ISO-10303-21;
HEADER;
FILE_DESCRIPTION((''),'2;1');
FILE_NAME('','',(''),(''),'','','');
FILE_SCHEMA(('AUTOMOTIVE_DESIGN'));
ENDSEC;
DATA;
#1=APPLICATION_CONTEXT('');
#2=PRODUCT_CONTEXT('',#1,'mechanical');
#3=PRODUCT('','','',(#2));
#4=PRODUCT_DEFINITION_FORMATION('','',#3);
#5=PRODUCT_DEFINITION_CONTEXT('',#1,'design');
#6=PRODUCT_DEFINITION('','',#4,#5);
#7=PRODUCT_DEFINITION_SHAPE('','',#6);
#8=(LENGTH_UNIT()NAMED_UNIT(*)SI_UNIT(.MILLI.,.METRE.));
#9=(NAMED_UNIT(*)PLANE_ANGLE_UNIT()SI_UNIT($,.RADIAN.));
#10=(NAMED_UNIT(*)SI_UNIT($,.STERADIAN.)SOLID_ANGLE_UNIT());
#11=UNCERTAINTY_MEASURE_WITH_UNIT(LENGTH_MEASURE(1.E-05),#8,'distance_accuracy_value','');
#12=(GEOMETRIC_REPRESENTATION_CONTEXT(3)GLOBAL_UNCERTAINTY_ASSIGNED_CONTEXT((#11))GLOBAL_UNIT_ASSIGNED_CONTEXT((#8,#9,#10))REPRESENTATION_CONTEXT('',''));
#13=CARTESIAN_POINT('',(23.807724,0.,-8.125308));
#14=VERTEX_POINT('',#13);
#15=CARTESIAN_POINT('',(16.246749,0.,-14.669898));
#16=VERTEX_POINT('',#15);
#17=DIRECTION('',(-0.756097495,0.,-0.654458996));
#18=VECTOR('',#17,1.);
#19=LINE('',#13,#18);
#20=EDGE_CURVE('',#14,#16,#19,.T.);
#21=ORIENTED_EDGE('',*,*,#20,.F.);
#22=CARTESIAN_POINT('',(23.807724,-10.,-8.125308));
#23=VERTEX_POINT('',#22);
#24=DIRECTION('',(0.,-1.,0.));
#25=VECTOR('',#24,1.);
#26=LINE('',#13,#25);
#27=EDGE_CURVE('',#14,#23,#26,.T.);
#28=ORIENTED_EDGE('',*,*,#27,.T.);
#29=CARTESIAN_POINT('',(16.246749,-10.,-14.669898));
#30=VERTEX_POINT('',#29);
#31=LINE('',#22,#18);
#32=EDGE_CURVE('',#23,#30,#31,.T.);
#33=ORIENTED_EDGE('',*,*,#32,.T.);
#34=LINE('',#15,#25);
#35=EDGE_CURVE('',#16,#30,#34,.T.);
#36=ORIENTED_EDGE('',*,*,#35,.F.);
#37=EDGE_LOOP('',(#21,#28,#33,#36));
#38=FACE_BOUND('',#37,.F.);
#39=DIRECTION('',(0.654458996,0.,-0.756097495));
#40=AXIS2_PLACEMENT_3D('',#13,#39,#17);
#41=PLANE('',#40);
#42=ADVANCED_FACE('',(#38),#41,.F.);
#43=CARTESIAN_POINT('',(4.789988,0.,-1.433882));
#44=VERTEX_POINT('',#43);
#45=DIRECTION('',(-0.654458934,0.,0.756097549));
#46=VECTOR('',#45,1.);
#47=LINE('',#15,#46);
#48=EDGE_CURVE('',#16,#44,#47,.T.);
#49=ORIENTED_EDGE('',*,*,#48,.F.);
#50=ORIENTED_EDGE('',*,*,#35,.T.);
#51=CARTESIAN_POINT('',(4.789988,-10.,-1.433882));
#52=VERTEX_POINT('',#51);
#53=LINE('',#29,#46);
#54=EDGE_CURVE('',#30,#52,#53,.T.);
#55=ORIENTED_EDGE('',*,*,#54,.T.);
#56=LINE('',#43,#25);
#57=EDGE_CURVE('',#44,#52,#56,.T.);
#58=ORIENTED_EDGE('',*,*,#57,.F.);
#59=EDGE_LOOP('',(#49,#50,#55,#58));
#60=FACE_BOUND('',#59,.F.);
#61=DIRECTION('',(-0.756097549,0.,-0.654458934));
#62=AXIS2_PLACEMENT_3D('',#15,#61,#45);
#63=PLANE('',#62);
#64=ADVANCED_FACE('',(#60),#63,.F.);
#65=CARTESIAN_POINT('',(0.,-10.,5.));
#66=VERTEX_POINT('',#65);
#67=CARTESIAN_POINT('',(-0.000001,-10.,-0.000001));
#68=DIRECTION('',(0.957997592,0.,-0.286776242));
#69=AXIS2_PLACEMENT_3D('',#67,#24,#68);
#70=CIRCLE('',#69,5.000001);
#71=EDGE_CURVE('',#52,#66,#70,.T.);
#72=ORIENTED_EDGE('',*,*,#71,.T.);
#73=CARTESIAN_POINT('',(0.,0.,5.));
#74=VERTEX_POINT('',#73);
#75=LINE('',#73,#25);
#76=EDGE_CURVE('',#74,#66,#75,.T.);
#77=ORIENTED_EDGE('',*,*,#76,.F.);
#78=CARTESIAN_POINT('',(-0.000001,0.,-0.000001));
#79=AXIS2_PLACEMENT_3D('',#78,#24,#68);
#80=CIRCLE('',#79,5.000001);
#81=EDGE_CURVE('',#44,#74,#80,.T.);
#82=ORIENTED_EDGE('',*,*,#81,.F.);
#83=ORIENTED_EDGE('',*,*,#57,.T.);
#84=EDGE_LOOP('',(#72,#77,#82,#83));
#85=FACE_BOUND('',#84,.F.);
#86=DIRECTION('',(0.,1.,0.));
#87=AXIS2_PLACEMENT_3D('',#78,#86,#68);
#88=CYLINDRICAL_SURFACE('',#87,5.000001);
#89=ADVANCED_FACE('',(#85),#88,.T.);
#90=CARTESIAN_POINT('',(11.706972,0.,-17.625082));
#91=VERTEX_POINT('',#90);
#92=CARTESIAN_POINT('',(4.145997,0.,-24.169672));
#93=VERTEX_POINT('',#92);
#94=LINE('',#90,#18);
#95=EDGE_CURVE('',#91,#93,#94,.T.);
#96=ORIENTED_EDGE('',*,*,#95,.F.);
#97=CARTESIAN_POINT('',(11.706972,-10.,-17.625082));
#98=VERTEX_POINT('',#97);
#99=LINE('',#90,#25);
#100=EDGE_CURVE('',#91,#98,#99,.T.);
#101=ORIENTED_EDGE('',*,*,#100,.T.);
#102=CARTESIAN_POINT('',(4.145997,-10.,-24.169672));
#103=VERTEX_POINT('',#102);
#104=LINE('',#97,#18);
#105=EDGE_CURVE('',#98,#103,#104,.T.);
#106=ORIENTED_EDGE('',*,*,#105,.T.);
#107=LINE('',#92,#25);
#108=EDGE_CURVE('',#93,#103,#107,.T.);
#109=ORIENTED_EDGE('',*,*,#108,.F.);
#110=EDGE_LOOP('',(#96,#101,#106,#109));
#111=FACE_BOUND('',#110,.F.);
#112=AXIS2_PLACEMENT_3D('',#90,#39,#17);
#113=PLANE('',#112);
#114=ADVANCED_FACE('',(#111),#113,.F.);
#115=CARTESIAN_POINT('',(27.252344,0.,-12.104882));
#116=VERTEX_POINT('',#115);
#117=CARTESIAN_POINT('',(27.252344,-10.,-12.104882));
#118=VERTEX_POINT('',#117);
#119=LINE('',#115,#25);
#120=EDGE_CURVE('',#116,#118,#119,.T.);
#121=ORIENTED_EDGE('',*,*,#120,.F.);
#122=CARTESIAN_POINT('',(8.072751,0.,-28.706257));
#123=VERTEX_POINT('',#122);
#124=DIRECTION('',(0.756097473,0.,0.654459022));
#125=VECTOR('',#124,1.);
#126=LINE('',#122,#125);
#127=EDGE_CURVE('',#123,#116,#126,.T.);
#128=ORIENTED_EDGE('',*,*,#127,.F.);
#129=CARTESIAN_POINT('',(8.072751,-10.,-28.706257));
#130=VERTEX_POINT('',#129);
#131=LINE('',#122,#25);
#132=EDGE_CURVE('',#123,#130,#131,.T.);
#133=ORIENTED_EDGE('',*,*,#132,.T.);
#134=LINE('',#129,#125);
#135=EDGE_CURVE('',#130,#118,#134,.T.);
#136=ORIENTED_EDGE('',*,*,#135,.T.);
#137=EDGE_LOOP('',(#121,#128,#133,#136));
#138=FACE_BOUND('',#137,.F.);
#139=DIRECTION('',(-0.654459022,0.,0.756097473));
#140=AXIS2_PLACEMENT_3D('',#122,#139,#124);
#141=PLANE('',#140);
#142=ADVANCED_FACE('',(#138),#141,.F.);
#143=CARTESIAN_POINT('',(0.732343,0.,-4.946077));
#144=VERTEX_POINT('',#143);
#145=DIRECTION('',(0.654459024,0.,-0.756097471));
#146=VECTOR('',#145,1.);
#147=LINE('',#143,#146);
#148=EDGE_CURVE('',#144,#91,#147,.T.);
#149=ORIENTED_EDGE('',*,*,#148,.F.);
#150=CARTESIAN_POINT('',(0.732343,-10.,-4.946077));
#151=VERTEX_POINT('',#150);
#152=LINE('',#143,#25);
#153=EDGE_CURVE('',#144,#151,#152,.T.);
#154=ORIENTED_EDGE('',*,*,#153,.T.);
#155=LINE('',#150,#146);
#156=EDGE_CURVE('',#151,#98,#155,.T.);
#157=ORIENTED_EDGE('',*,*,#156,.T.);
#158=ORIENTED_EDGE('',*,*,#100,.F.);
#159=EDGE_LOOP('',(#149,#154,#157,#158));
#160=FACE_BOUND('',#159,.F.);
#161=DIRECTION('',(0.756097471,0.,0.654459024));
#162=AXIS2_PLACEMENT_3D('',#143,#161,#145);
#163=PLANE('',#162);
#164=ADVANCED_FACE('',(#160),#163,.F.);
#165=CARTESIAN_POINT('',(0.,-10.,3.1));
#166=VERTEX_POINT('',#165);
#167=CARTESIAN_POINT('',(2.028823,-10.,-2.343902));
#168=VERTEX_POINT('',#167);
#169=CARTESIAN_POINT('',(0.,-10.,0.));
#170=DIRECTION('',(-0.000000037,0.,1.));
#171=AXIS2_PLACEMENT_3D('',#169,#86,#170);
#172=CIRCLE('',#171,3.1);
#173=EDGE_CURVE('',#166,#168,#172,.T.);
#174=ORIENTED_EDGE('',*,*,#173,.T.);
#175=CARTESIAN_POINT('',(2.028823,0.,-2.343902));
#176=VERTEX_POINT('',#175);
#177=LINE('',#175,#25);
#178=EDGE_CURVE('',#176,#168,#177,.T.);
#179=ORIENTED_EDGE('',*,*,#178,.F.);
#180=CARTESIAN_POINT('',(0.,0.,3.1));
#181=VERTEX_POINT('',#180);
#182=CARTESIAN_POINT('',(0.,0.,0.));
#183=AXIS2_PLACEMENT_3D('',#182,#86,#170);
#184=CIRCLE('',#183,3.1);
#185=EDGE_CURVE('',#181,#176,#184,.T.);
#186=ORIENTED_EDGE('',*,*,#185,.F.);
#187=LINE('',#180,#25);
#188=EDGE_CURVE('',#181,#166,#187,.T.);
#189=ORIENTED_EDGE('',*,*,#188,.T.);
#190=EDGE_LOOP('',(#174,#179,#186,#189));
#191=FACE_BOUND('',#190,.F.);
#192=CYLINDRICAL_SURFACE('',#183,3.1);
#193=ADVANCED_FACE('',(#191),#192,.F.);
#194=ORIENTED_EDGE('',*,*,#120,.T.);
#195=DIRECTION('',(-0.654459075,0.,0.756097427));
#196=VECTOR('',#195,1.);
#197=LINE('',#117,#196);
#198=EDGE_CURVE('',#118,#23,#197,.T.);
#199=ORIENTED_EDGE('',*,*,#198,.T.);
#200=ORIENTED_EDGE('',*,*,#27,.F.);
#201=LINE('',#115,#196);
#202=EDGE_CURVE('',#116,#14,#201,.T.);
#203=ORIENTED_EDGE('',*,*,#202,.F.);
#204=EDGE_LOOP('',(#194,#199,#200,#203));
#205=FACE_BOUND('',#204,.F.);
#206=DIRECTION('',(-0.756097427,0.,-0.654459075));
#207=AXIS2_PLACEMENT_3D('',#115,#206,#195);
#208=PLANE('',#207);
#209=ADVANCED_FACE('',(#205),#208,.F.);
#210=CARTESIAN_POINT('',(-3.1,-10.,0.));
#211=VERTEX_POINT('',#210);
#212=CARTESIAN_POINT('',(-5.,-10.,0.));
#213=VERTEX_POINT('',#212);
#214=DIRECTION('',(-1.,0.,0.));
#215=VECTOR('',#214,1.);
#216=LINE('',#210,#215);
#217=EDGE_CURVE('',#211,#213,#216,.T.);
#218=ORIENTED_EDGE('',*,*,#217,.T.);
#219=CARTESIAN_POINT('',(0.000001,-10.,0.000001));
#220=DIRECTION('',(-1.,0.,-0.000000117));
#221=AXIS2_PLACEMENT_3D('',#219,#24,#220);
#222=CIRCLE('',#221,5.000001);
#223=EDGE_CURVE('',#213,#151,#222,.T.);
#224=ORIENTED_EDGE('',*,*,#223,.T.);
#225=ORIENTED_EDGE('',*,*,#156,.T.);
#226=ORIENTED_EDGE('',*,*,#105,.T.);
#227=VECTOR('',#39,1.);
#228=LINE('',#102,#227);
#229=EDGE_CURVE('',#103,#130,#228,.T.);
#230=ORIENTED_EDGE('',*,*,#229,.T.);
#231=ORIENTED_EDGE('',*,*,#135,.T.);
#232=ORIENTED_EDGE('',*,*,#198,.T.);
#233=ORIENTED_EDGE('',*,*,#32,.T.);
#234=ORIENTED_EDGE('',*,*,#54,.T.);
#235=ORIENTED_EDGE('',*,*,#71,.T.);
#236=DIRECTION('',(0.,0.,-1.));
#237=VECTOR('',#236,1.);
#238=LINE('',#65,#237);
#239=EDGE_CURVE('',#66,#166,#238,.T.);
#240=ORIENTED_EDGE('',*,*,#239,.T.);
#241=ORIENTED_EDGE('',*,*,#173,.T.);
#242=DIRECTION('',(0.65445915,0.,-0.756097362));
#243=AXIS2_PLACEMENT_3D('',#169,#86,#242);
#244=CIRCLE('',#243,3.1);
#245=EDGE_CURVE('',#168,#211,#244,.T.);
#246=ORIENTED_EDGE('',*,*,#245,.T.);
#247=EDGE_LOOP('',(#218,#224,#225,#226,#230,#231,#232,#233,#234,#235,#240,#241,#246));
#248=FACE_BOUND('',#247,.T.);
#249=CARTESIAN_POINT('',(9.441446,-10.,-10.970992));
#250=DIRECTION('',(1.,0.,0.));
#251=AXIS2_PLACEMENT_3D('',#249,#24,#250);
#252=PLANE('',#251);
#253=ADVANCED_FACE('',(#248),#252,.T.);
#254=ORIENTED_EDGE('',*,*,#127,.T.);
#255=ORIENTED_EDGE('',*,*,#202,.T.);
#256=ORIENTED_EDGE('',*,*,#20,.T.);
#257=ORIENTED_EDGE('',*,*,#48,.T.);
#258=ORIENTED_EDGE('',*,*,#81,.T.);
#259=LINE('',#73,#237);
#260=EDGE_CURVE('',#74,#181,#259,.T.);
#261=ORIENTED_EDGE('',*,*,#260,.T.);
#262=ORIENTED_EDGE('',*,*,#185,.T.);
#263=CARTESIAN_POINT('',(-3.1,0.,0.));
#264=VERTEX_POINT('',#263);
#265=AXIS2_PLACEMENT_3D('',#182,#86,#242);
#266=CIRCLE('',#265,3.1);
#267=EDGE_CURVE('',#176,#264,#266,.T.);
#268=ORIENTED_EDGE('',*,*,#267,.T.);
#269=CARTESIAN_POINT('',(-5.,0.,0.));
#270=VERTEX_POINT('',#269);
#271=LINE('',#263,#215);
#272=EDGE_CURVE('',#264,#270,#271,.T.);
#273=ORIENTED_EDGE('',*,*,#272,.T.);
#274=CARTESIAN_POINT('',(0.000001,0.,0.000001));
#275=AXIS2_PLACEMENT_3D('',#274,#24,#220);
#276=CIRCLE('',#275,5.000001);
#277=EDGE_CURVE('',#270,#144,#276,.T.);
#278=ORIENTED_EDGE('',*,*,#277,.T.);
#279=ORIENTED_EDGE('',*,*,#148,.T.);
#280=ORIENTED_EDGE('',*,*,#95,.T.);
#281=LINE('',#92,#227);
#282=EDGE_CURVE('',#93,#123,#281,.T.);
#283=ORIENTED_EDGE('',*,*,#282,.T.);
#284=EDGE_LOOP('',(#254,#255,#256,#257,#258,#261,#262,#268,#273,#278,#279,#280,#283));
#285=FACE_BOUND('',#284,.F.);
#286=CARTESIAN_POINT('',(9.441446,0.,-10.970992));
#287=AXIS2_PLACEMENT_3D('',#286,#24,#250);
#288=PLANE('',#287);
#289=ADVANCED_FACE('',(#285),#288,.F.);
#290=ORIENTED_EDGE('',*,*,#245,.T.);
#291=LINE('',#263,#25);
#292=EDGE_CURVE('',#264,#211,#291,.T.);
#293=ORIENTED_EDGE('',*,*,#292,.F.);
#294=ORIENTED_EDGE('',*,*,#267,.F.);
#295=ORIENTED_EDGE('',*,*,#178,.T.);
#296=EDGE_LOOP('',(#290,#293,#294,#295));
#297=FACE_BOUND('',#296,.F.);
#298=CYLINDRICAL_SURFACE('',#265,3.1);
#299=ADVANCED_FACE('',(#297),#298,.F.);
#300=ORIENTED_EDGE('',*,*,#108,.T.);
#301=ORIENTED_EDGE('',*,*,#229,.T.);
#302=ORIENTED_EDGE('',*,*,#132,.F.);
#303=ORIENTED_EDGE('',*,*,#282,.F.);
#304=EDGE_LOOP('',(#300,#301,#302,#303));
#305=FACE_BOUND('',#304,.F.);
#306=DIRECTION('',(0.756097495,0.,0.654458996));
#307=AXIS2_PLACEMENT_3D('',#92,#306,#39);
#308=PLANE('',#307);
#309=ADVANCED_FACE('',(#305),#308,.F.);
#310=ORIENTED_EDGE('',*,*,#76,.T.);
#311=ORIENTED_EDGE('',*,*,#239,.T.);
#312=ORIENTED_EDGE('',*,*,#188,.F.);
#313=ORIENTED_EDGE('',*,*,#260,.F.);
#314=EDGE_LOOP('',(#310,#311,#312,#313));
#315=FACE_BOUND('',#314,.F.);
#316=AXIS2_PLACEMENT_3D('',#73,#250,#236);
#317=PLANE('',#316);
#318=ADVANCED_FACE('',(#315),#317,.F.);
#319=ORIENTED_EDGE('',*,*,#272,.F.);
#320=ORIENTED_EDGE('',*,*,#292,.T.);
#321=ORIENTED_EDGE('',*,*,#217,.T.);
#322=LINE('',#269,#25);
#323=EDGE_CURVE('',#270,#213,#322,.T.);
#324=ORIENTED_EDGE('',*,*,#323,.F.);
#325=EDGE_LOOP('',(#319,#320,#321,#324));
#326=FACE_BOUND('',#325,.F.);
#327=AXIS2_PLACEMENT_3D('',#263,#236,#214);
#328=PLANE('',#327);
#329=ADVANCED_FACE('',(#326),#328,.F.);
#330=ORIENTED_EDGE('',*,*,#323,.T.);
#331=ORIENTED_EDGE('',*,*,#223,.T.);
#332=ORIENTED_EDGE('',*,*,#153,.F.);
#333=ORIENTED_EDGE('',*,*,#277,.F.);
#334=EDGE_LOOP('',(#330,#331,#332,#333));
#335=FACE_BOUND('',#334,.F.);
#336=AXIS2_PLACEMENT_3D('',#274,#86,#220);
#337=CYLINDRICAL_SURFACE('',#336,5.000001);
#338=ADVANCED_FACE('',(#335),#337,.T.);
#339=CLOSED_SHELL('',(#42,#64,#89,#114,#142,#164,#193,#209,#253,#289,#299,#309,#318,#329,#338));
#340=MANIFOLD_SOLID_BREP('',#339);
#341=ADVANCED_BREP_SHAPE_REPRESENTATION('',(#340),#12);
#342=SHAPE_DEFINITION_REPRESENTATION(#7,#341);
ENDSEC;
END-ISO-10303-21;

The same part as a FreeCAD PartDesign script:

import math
import FreeCAD as App
import Part
import Sketcher

doc = App.newDocument("Part")
body = doc.addObject("PartDesign::Body", "Body")

sketch1 = body.newObject("Sketcher::SketchObject", "Sketch")
sketch1.AttachmentSupport = (doc.getObject("XZ_Plane"), [""])
sketch1.MapMode = "FlatFace"
sketch1.addGeometry([
    Part.ArcOfCircle(Part.Circle(App.Vector(0, 0, 0), App.Vector(0, 0, 1), 3.1), math.radians(180), math.radians(311)),
    Part.LineSegment(App.Vector(-3.1, 0, 0), App.Vector(-5, 0, 0)),
    Part.ArcOfCircle(Part.Circle(App.Vector(0, 0, 0), App.Vector(0, 0, 1), 5), math.radians(-180), math.radians(-82)),
    Part.LineSegment(App.Vector(0.7, -4.9, 0), App.Vector(11.7, -17.6, 0)),
    Part.LineSegment(App.Vector(11.7, -17.6, 0), App.Vector(4.1, -24.2, 0)),
    Part.LineSegment(App.Vector(4.1, -24.2, 0), App.Vector(8.1, -28.7, 0)),
    Part.LineSegment(App.Vector(8.1, -28.7, 0), App.Vector(27.3, -12.1, 0)),
    Part.LineSegment(App.Vector(27.3, -12.1, 0), App.Vector(23.8, -8.1, 0)),
    Part.LineSegment(App.Vector(23.8, -8.1, 0), App.Vector(16.2, -14.7, 0)),
    Part.LineSegment(App.Vector(16.2, -14.7, 0), App.Vector(4.8, -1.4, 0)),
    Part.ArcOfCircle(Part.Circle(App.Vector(0, 0, 0), App.Vector(0, 0, 1), 5), math.radians(-17), math.radians(90)),
    Part.LineSegment(App.Vector(0, 5, 0), App.Vector(0, 3.1, 0)),
    Part.ArcOfCircle(Part.Circle(App.Vector(0, 0, 0), App.Vector(0, 0, 1), 3.1), math.radians(-49), math.radians(90)),
], False)
sketch1.addConstraint([
    Sketcher.Constraint("Coincident", 0, 1, 1, 1),
    Sketcher.Constraint("Coincident", 1, 2, 2, 1),
    Sketcher.Constraint("Coincident", 2, 2, 3, 1),
    Sketcher.Constraint("Coincident", 3, 2, 4, 1),
    Sketcher.Constraint("Coincident", 4, 2, 5, 1),
    Sketcher.Constraint("Coincident", 5, 2, 6, 1),
    Sketcher.Constraint("Coincident", 6, 2, 7, 1),
    Sketcher.Constraint("Coincident", 7, 2, 8, 1),
    Sketcher.Constraint("Coincident", 8, 2, 9, 1),
    Sketcher.Constraint("Coincident", 9, 2, 10, 1),
    Sketcher.Constraint("Coincident", 10, 2, 11, 1),
    Sketcher.Constraint("Coincident", 11, 2, 12, 2),
    Sketcher.Constraint("Tangent", 12, 1, 0, 2),
    Sketcher.Constraint("Horizontal", 1),
    Sketcher.Constraint("Vertical", 11),
    Sketcher.Constraint("Coincident", 0, 3, -1, 1),
    Sketcher.Constraint("Coincident", 2, 3, -1, 1),
    Sketcher.Constraint("Coincident", 10, 3, -1, 1),
    Sketcher.Constraint("Equal", 2, 10),
    Sketcher.Constraint("Equal", 0, 12),
    Sketcher.Constraint("PointOnObject", 0, 1, -1),
    Sketcher.Constraint("PointOnObject", 10, 2, -2),
    Sketcher.Constraint("Perpendicular", 3, 4),
    Sketcher.Constraint("Perpendicular", 4, 5),
    Sketcher.Constraint("Perpendicular", 5, 6),
    Sketcher.Constraint("Perpendicular", 6, 7),
    Sketcher.Constraint("Perpendicular", 7, 8),
    Sketcher.Constraint("Perpendicular", 8, 9),
    Sketcher.Constraint("Equal", 4, 8),
    Sketcher.Constraint("Radius", 2, 5.000001),
    Sketcher.Constraint("Radius", 0, 3.1),
    Sketcher.Constraint("Distance", 4, 10.0),
    Sketcher.Constraint("Distance", 5, 6.0),
    Sketcher.Constraint("DistanceX", 2, 2, 6, 2, 26.520001),
    Sketcher.Constraint("DistanceX", 5, 2, 8, 2, 8.173998),
    Sketcher.Constraint("Distance", 9, 17.505699),
    Sketcher.Constraint("DistanceY", 12, 1, -1, 1, 2.343902),
    Sketcher.Constraint("DistanceY", 3, 2, 6, 2, 5.5202),
    Sketcher.Constraint("Distance", 3, 16.769009),
])
pad1 = body.newObject("PartDesign::Pad", "Pad")
pad1.Profile = sketch1
pad1.Length = 10

doc.recompute()
